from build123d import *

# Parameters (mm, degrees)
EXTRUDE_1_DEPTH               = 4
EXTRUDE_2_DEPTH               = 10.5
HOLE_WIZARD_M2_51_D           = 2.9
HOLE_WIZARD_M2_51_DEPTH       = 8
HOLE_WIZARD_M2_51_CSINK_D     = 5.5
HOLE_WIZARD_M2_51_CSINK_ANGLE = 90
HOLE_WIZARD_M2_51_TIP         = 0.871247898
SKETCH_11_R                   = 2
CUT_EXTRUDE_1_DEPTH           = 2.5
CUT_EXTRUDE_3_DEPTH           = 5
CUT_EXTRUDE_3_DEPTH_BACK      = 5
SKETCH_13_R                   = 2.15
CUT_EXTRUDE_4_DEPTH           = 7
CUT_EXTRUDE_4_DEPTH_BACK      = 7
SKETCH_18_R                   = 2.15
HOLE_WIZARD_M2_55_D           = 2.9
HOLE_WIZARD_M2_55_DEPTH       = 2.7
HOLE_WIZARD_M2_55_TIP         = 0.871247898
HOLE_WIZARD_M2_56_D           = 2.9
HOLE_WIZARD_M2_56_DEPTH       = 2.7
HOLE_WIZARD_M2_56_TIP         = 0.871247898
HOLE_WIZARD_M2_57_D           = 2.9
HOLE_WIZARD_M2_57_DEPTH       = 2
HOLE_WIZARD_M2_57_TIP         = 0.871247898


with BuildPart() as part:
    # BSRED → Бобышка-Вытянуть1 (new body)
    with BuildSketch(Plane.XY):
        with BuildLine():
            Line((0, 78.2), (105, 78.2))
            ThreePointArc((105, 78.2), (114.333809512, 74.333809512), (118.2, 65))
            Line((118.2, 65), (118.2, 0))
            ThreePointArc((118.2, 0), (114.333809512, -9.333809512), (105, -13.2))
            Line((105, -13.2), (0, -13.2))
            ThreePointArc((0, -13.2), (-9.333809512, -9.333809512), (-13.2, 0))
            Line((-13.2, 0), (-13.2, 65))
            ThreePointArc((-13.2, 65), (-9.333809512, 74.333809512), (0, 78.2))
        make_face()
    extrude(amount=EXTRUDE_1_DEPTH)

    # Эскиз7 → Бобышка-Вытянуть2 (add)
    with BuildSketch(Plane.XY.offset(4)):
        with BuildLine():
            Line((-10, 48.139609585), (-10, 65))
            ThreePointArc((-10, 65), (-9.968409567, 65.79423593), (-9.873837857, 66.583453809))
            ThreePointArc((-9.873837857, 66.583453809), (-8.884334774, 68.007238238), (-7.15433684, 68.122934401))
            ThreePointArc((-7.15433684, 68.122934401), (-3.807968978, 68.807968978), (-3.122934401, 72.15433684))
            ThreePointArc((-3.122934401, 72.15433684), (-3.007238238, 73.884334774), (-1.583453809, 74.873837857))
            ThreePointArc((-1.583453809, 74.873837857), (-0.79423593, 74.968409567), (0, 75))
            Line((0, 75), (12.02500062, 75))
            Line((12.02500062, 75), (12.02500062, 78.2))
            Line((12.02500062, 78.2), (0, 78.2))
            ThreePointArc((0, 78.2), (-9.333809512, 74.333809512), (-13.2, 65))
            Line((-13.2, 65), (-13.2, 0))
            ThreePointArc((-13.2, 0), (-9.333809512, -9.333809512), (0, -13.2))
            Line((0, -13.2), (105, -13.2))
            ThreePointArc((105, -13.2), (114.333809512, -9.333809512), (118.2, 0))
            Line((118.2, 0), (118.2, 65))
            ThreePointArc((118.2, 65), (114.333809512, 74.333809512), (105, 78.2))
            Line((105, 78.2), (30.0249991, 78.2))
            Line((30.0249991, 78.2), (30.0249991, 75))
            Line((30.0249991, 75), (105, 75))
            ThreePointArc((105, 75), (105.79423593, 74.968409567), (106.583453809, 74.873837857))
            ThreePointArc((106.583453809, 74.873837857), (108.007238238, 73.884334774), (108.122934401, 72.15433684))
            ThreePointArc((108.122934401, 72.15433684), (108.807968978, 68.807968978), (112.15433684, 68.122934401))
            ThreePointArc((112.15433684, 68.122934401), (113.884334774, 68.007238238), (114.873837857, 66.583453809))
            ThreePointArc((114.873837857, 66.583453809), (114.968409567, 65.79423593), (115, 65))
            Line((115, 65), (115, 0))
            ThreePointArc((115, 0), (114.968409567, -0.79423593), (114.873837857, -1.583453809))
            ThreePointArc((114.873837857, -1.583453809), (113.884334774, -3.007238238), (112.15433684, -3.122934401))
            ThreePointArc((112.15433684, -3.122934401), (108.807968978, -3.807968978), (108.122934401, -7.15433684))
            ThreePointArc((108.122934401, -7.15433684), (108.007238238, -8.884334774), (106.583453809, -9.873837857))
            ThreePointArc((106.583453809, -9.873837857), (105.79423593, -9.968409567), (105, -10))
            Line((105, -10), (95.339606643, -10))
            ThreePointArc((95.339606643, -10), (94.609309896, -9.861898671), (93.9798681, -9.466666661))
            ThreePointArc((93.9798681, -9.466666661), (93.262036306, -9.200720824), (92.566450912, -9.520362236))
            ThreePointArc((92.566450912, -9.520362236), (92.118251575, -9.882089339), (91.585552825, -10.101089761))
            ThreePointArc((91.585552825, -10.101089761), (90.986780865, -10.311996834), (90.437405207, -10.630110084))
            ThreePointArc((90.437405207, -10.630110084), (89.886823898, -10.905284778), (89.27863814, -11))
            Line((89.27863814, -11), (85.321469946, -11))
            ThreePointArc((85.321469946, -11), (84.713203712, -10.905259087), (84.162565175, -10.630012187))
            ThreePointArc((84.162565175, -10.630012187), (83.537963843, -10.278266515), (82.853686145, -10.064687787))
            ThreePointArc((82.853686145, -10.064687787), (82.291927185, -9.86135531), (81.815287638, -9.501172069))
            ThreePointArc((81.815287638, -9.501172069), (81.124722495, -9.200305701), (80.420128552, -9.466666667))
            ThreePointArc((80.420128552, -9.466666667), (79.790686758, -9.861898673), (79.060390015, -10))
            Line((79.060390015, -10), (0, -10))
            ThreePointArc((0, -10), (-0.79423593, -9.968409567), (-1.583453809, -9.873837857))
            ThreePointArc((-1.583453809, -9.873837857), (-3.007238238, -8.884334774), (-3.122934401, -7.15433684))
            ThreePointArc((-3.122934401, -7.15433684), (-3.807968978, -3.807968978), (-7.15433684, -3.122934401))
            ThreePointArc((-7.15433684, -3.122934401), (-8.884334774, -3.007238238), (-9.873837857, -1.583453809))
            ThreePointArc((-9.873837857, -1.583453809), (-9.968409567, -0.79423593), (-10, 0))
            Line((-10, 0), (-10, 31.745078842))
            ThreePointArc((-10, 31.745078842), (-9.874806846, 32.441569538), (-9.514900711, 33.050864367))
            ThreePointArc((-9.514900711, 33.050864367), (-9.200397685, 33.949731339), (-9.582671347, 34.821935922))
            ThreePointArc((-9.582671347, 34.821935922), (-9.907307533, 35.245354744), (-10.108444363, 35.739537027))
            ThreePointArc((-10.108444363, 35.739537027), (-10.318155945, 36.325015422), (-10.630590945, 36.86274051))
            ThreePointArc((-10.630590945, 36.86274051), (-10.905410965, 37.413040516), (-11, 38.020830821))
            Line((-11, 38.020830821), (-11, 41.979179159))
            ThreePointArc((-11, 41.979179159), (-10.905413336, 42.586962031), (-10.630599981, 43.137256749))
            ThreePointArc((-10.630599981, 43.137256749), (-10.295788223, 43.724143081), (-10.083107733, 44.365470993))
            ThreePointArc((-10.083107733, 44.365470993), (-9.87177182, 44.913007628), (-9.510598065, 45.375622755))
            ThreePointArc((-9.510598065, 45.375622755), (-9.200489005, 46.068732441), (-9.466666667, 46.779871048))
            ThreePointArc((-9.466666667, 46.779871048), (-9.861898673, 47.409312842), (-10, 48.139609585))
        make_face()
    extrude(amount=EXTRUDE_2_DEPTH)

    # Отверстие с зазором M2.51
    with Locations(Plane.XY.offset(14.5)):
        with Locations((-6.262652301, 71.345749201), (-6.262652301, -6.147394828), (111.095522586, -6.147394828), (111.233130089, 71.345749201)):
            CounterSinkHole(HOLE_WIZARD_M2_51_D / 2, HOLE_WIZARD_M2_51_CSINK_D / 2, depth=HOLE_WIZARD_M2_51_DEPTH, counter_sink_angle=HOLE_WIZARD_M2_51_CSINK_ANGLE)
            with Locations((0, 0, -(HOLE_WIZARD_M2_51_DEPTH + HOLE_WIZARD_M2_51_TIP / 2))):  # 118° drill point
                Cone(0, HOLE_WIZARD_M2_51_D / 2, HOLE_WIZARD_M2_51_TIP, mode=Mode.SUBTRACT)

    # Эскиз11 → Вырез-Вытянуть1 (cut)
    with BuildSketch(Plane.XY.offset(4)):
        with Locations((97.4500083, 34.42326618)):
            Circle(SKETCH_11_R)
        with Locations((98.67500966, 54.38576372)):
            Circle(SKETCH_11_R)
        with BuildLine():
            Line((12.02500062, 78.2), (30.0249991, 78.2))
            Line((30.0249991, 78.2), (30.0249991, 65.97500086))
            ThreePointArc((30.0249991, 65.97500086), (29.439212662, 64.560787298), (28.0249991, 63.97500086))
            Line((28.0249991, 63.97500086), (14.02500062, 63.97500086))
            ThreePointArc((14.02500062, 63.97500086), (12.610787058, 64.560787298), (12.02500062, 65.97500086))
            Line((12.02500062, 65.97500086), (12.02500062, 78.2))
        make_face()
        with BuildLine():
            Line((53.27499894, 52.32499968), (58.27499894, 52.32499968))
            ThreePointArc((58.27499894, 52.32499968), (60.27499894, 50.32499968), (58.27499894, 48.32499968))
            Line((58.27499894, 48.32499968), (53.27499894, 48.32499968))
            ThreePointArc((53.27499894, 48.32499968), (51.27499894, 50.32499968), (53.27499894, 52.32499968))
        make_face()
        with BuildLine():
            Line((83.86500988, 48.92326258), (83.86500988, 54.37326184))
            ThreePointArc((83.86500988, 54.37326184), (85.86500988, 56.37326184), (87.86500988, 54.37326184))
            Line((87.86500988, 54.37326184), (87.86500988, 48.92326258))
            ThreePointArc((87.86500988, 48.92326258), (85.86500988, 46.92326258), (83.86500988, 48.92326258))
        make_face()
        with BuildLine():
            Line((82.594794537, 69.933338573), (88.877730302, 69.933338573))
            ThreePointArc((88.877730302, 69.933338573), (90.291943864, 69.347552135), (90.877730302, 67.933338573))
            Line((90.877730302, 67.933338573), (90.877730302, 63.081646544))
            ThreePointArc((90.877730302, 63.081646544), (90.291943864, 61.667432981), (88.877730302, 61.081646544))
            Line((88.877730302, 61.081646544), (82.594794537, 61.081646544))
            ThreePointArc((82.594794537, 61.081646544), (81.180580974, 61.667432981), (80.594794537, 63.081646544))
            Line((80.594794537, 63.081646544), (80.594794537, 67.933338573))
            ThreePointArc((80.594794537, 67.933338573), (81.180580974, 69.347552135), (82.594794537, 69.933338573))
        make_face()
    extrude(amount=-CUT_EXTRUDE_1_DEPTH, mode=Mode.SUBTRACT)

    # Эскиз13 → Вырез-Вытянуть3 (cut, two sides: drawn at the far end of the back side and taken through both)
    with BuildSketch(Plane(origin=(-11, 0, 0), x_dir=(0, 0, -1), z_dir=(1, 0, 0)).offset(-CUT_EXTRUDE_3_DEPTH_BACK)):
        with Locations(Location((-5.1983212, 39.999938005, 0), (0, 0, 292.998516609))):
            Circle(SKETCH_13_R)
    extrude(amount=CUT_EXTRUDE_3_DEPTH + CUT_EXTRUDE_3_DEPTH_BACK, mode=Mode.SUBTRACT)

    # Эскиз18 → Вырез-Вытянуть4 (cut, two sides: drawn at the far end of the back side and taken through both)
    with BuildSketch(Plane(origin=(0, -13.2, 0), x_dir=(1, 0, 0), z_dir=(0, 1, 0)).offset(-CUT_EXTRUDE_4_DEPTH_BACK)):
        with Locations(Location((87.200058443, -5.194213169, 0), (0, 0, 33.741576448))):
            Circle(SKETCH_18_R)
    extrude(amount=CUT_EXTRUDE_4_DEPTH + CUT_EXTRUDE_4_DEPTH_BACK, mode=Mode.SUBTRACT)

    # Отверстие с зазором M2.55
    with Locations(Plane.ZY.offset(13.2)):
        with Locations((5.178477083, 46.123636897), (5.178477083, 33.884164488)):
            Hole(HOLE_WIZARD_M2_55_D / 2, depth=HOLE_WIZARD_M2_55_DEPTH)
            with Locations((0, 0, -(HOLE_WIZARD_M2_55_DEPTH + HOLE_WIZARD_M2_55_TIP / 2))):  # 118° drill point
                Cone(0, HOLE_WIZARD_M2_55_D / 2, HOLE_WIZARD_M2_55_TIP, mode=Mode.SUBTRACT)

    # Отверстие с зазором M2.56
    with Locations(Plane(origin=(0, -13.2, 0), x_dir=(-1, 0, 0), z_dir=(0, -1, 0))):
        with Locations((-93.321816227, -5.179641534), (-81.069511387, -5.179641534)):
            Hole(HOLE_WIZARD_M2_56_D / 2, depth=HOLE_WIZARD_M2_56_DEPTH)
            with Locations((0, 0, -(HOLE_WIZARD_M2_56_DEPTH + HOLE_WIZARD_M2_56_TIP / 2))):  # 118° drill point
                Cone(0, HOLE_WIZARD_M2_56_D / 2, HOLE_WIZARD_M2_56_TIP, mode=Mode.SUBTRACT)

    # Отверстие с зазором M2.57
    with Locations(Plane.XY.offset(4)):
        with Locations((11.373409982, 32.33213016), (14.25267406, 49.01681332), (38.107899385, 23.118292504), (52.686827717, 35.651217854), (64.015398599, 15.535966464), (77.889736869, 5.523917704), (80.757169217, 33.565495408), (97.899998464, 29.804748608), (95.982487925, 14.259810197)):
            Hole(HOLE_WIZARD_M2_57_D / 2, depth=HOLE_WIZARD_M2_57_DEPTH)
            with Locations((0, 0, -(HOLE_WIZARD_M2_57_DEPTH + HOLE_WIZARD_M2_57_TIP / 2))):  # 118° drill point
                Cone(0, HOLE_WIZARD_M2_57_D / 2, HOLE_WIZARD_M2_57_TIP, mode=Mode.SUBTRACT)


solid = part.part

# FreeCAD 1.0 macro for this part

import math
import FreeCAD as App
import Part
import Sketcher

V = App.Vector

doc = App.newDocument("Part")
body = doc.addObject("PartDesign::Body", "Body")

sketch1 = body.newObject("Sketcher::SketchObject", "Sketch")
sketch1.AttachmentSupport = (doc.getObject("XY_Plane"), [""])
sketch1.MapMode = "FlatFace"
sketch1.addGeometry([
    Part.LineSegment(V(105, 78, 0), V(0, 78, 0)),
    Part.ArcOfCircle(Part.Circle(V(0, 65, 0), V(0, 0, 1), 13), math.radians(90), math.radians(180)),
    Part.LineSegment(V(-13, 65, 0), V(-13, 0, 0)),
    Part.ArcOfCircle(Part.Circle(V(0, 0, 0), V(0, 0, 1), 13), math.radians(180), math.radians(270)),
    Part.LineSegment(V(0, -13, 0), V(105, -13, 0)),
    Part.ArcOfCircle(Part.Circle(V(105, 0, 0), V(0, 0, 1), 13), math.radians(-90), math.radians(0)),
    Part.LineSegment(V(118, 0, 0), V(118, 65, 0)),
    Part.ArcOfCircle(Part.Circle(V(105, 65, 0), V(0, 0, 1), 13), math.radians(0), math.radians(90)),
], False)
sketch1.addConstraint([
    Sketcher.Constraint("Tangent", 0, 2, 1, 1),
    Sketcher.Constraint("Tangent", 1, 2, 2, 1),
    Sketcher.Constraint("Tangent", 2, 2, 3, 1),
    Sketcher.Constraint("Tangent", 3, 2, 4, 1),
    Sketcher.Constraint("Tangent", 4, 2, 5, 1),
    Sketcher.Constraint("Tangent", 5, 2, 6, 1),
    Sketcher.Constraint("Tangent", 6, 2, 7, 1),
    Sketcher.Constraint("Tangent", 7, 2, 0, 1),
    Sketcher.Constraint("Horizontal", 0),
    Sketcher.Constraint("Vertical", 2),
    Sketcher.Constraint("Horizontal", 4),
    Sketcher.Constraint("Vertical", 6),
    Sketcher.Constraint("Coincident", 3, 3, -1, 1),
    Sketcher.Constraint("Equal", 1, 3),
    Sketcher.Constraint("Equal", 3, 5),
    Sketcher.Constraint("Equal", 5, 7),
    Sketcher.Constraint("Radius", 1, 13.2),
    Sketcher.Constraint("DistanceX", 0, 2, 0, 1, 105.0),
    Sketcher.Constraint("DistanceY", 2, 2, 2, 1, 65.0),
])
pad1 = body.newObject("PartDesign::Pad", "Pad")
pad1.Profile = sketch1
pad1.Length = 4

sketch2 = body.newObject("Sketcher::SketchObject", "Sketch001")
sketch2.AttachmentSupport = (doc.getObject("XY_Plane"), [""])
sketch2.MapMode = "FlatFace"
sketch2.AttachmentOffset = App.Placement(V(0, 0, 4), App.Rotation())
sketch2.addGeometry([
    Part.LineSegment(V(-10, 48.1, 0), V(-10, 65, 0)),
    Part.ArcOfCircle(Part.Circle(V(0, 65, 0), V(0, 0, 1), 10), math.radians(170.89), math.radians(180)),
    Part.ArcOfCircle(Part.Circle(V(-7.9, 66.3, 0), V(0, 0, 1), 2), math.radians(68), math.radians(171)),
    Part.ArcOfCircle(Part.Circle(V(-6, 71, 0), V(0, 0, 1), 3.1), math.radians(-112), math.radians(22)),
    Part.ArcOfCircle(Part.Circle(V(-1.3, 72.9, 0), V(0, 0, 1), 2), math.radians(99), math.radians(202)),
    Part.ArcOfCircle(Part.Circle(V(0, 65, 0), V(0, 0, 1), 10), math.radians(90), math.radians(99.11)),
    Part.LineSegment(V(0, 75, 0), V(12, 75, 0)),
    Part.LineSegment(V(12, 75, 0), V(12, 78.2, 0)),
    Part.LineSegment(V(12, 78.2, 0), V(0, 78.2, 0)),
    Part.ArcOfCircle(Part.Circle(V(0, 65, 0), V(0, 0, 1), 13.2), math.radians(90), math.radians(180)),
    Part.LineSegment(V(-13.2, 65, 0), V(-13.2, 0, 0)),
    Part.ArcOfCircle(Part.Circle(V(0, 0, 0), V(0, 0, 1), 13.2), math.radians(180), math.radians(270)),
    Part.LineSegment(V(0, -13.2, 0), V(105, -13.2, 0)),
    Part.ArcOfCircle(Part.Circle(V(105, 0, 0), V(0, 0, 1), 13.2), math.radians(-90), math.radians(0)),
    Part.LineSegment(V(118.2, 0, 0), V(118.2, 65, 0)),
    Part.ArcOfCircle(Part.Circle(V(105, 65, 0), V(0, 0, 1), 13.2), math.radians(0), math.radians(90)),
    Part.LineSegment(V(105, 78.2, 0), V(30, 78.2, 0)),
    Part.LineSegment(V(30, 78.2, 0), V(30, 75, 0)),
    Part.LineSegment(V(30, 75, 0), V(105, 75, 0)),
    Part.ArcOfCircle(Part.Circle(V(105, 65, 0), V(0, 0, 1), 10), math.radians(80.89), math.radians(90)),
    Part.ArcOfCircle(Part.Circle(V(106.3, 72.9, 0), V(0, 0, 1), 2), math.radians(-22), math.radians(81)),
    Part.ArcOfCircle(Part.Circle(V(111, 71, 0), V(0, 0, 1), 3.1), math.radians(158), math.radians(292)),
    Part.ArcOfCircle(Part.Circle(V(112.9, 66.3, 0), V(0, 0, 1), 2), math.radians(9), math.radians(112)),
    Part.ArcOfCircle(Part.Circle(V(105, 65, 0), V(0, 0, 1), 10), math.radians(0), math.radians(9.11)),
    Part.LineSegment(V(115, 65, 0), V(115, 0, 0)),
    Part.ArcOfCircle(Part.Circle(V(105, 0, 0), V(0, 0, 1), 10), math.radians(-9.11), math.radians(0)),
    Part.ArcOfCircle(Part.Circle(V(112.9, -1.3, 0), V(0, 0, 1), 2), math.radians(-112), math.radians(-9)),
    Part.ArcOfCircle(Part.Circle(V(111, -6, 0), V(0, 0, 1), 3.1), math.radians(68), math.radians(202)),
    Part.ArcOfCircle(Part.Circle(V(106.3, -7.9, 0), V(0, 0, 1), 2), math.radians(-81), math.radians(22)),
    Part.ArcOfCircle(Part.Circle(V(105, 0, 0), V(0, 0, 1), 10), math.radians(-90), math.radians(-80.89)),
    Part.LineSegment(V(105, -10, 0), V(95.3, -10, 0)),
    Part.ArcOfCircle(Part.Circle(V(95.3, -8, 0), V(0, 0, 1), 2), math.radians(-133), math.radians(-90)),
    Part.ArcOfCircle(Part.Circle(V(93.3, -10.2, 0), V(0, 0, 1), 1), math.radians(47), math.radians(137)),
    Part.ArcOfCircle(Part.Circle(V(91.1, -8.2, 0), V(0, 0, 1), 2), math.radians(-76), math.radians(-43)),
    Part.ArcOfCircle(Part.Circle(V(92.4, -13.4, 0), V(0, 0, 1), 3.4), math.radians(104), math.radians(125)),
    Part.ArcOfCircle(Part.Circle(V(89.3, -9, 0), V(0, 0, 1), 2), math.radians(-90), math.radians(-55)),
    Part.LineSegment(V(89.3, -11, 0), V(85.3, -11, 0)),
    Part.ArcOfCircle(Part.Circle(V(85.3, -9, 0), V(0, 0, 1), 2), math.radians(-125), math.radians(-90)),
    Part.ArcOfCircle(Part.Circle(V(82.2, -13.4, 0), V(0, 0, 1), 3.4), math.radians(55), math.radians(79)),
    Part.ArcOfCircle(Part.Circle(V(83.2, -8.1, 0), V(0, 0, 1), 2), math.radians(-136), math.radians(-101)),
    Part.ArcOfCircle(Part.Circle(V(81.1, -10.2, 0), V(0, 0, 1), 1), math.radians(44), math.radians(133)),
    Part.ArcOfCircle(Part.Circle(V(79.1, -8, 0), V(0, 0, 1), 2), math.radians(-90), math.radians(-47)),
    Part.LineSegment(V(79.1, -10, 0), V(0, -10, 0)),
    Part.ArcOfCircle(Part.Circle(V(0, 0, 0), V(0, 0, 1), 10), math.radians(-99.11), math.radians(-90)),
    Part.ArcOfCircle(Part.Circle(V(-1.3, -7.9, 0), V(0, 0, 1), 2), math.radians(158), math.radians(261)),
    Part.ArcOfCircle(Part.Circle(V(-6, -6, 0), V(0, 0, 1), 3.1), math.radians(-22), math.radians(112)),
    Part.ArcOfCircle(Part.Circle(V(-7.9, -1.3, 0), V(0, 0, 1), 2), math.radians(-171), math.radians(-68)),
    Part.ArcOfCircle(Part.Circle(V(0, 0, 0), V(0, 0, 1), 10), math.radians(180), math.radians(189.11)),
    Part.LineSegment(V(-10, 0, 0), V(-10, 31.7, 0)),
    Part.ArcOfCircle(Part.Circle(V(-8, 31.7, 0), V(0, 0, 1), 2), math.radians(139), math.radians(180)),
    Part.ArcOfCircle(Part.Circle(V(-10.5, 33.9, 0), V(0, 0, 1), 1.3), math.radians(-41), math.radians(45)),
    Part.ArcOfCircle(Part.Circle(V(-8.2, 36.2, 0), V(0, 0, 1), 2), math.radians(-166), math.radians(-135)),
    Part.ArcOfCircle(Part.Circle(V(-13.4, 34.9, 0), V(0, 0, 1), 3.4), math.radians(14), math.radians(35)),
    Part.ArcOfCircle(Part.Circle(V(-9, 38, 0), V(0, 0, 1), 2), math.radians(180), math.radians(215)),
    Part.LineSegment(V(-11, 38, 0), V(-11, 42, 0)),
    Part.ArcOfCircle(Part.Circle(V(-9, 42, 0), V(0, 0, 1), 2), math.radians(145), math.radians(180)),
    Part.ArcOfCircle(Part.Circle(V(-13.4, 45.1, 0), V(0, 0, 1), 3.4), math.radians(-35), math.radians(-13)),
    Part.ArcOfCircle(Part.Circle(V(-8.1, 43.9, 0), V(0, 0, 1), 2), math.radians(134), math.radians(167)),
    Part.ArcOfCircle(Part.Circle(V(-10.2, 46.1, 0), V(0, 0, 1), 1), math.radians(-46), math.radians(43)),
    Part.ArcOfCircle(Part.Circle(V(-8, 48.1, 0), V(0, 0, 1), 2), math.radians(180), math.radians(223)),
], False)
sketch2.addConstraint([
    Sketcher.Constraint("Tangent", 0, 2, 1, 2),
    Sketcher.Constraint("Tangent", 1, 1, 2, 2),
    Sketcher.Constraint("Tangent", 2, 1, 3, 1),
    Sketcher.Constraint("Tangent", 3, 2, 4, 2),
    Sketcher.Constraint("Tangent", 4, 1, 5, 2),
    Sketcher.Constraint("Tangent", 5, 1, 6, 1),
    Sketcher.Constraint("Coincident", 6, 2, 7, 1),
    Sketcher.Constraint("Coincident", 7, 2, 8, 1),
    Sketcher.Constraint("Tangent", 8, 2, 9, 1),
    Sketcher.Constraint("Tangent", 9, 2, 10, 1),
    Sketcher.Constraint("Tangent", 10, 2, 11, 1),
    Sketcher.Constraint("Tangent", 11, 2, 12, 1),
    Sketcher.Constraint("Tangent", 12, 2, 13, 1),
    Sketcher.Constraint("Tangent", 13, 2, 14, 1),
    Sketcher.Constraint("Tangent", 14, 2, 15, 1),
    Sketcher.Constraint("Tangent", 15, 2, 16, 1),
    Sketcher.Constraint("Coincident", 16, 2, 17, 1),
    Sketcher.Constraint("Coincident", 17, 2, 18, 1),
    Sketcher.Constraint("Tangent", 18, 2, 19, 2),
    Sketcher.Constraint("Tangent", 19, 1, 20, 2),
    Sketcher.Constraint("Tangent", 20, 1, 21, 1),
    Sketcher.Constraint("Tangent", 21, 2, 22, 2),
    Sketcher.Constraint("Tangent", 22, 1, 23, 2),
    Sketcher.Constraint("Tangent", 23, 1, 24, 1),
    Sketcher.Constraint("Tangent", 24, 2, 25, 2),
    Sketcher.Constraint("Tangent", 25, 1, 26, 2),
    Sketcher.Constraint("Tangent", 26, 1, 27, 1),
    Sketcher.Constraint("Tangent", 27, 2, 28, 2),
    Sketcher.Constraint("Tangent", 28, 1, 29, 2),
    Sketcher.Constraint("Tangent", 29, 1, 30, 1),
    Sketcher.Constraint("Tangent", 30, 2, 31, 2),
    Sketcher.Constraint("Tangent", 31, 1, 32, 1),
    Sketcher.Constraint("Tangent", 32, 2, 33, 2),
    Sketcher.Constraint("Tangent", 33, 1, 34, 1),
    Sketcher.Constraint("Tangent", 34, 2, 35, 2),
    Sketcher.Constraint("Tangent", 35, 1, 36, 1),
    Sketcher.Constraint("Tangent", 36, 2, 37, 2),
    Sketcher.Constraint("Tangent", 37, 1, 38, 1),
    Sketcher.Constraint("Tangent", 38, 2, 39, 2),
    Sketcher.Constraint("Tangent", 39, 1, 40, 1),
    Sketcher.Constraint("Tangent", 40, 2, 41, 2),
    Sketcher.Constraint("Tangent", 41, 1, 42, 1),
    Sketcher.Constraint("Tangent", 42, 2, 43, 2),
    Sketcher.Constraint("Tangent", 43, 1, 44, 2),
    Sketcher.Constraint("Tangent", 44, 1, 45, 1),
    Sketcher.Constraint("Tangent", 45, 2, 46, 2),
    Sketcher.Constraint("Tangent", 46, 1, 47, 2),
    Sketcher.Constraint("Tangent", 47, 1, 48, 1),
    Sketcher.Constraint("Tangent", 48, 2, 49, 2),
    Sketcher.Constraint("Tangent", 49, 1, 50, 1),
    Sketcher.Constraint("Tangent", 50, 2, 51, 2),
    Sketcher.Constraint("Tangent", 51, 1, 52, 1),
    Sketcher.Constraint("Tangent", 52, 2, 53, 2),
    Sketcher.Constraint("Tangent", 53, 1, 54, 1),
    Sketcher.Constraint("Tangent", 54, 2, 55, 2),
    Sketcher.Constraint("Tangent", 55, 1, 56, 1),
    Sketcher.Constraint("Tangent", 56, 2, 57, 2),
    Sketcher.Constraint("Tangent", 57, 1, 58, 1),
    Sketcher.Constraint("Tangent", 58, 2, 59, 2),
    Sketcher.Constraint("Tangent", 59, 1, 0, 1),
    Sketcher.Constraint("Vertical", 0),
    Sketcher.Constraint("Horizontal", 6),
    Sketcher.Constraint("Vertical", 7),
    Sketcher.Constraint("Horizontal", 8),
    Sketcher.Constraint("Vertical", 10),
    Sketcher.Constraint("Horizontal", 12),
    Sketcher.Constraint("Vertical", 14),
    Sketcher.Constraint("Horizontal", 16),
    Sketcher.Constraint("Vertical", 17),
    Sketcher.Constraint("Horizontal", 18),
    Sketcher.Constraint("Vertical", 24),
    Sketcher.Constraint("Horizontal", 30),
    Sketcher.Constraint("Horizontal", 36),
    Sketcher.Constraint("Horizontal", 42),
    Sketcher.Constraint("Vertical", 48),
    Sketcher.Constraint("Vertical", 54),
    Sketcher.Constraint("Coincident", 11, 3, -1, 1),
    Sketcher.Constraint("Coincident", 43, 3, -1, 1),
    Sketcher.Constraint("Coincident", 47, 3, -1, 1),
    Sketcher.Constraint("Coincident", 5, 3, 1, 3),
    Sketcher.Constraint("Coincident", 9, 3, 1, 3),
    Sketcher.Constraint("Coincident", 19, 3, 15, 3),
    Sketcher.Constraint("Coincident", 23, 3, 15, 3),
    Sketcher.Constraint("Coincident", 25, 3, 13, 3),
    Sketcher.Constraint("Coincident", 29, 3, 13, 3),
    Sketcher.Constraint("Equal", 2, 4),
    Sketcher.Constraint("Equal", 1, 5),
    Sketcher.Constraint("Equal", 9, 11),
    Sketcher.Constraint("Equal", 11, 13),
    Sketcher.Constraint("Equal", 13, 15),
    Sketcher.Constraint("Equal", 5, 19),
    Sketcher.Constraint("Equal", 4, 20),
    Sketcher.Constraint("Equal", 3, 21),
    Sketcher.Constraint("Equal", 20, 22),
    Sketcher.Constraint("Equal", 19, 23),
    Sketcher.Constraint("Equal", 22, 26),
    Sketcher.Constraint("Equal", 21, 27),
    Sketcher.Constraint("Equal", 26, 28),
    Sketcher.Constraint("Equal", 25, 29),
    Sketcher.Constraint("Equal", 28, 31),
    Sketcher.Constraint("Equal", 31, 33),
    Sketcher.Constraint("Equal", 33, 35),
    Sketcher.Constraint("Equal", 35, 37),
    Sketcher.Constraint("Equal", 34, 38),
    Sketcher.Constraint("Equal", 37, 39),
    Sketcher.Constraint("Equal", 32, 40),
    Sketcher.Constraint("Equal", 39, 41),
    Sketcher.Constraint("Equal", 29, 43),
    Sketcher.Constraint("Equal", 41, 44),
    Sketcher.Constraint("Equal", 27, 45),
    Sketcher.Constraint("Equal", 44, 46),
    Sketcher.Constraint("Equal", 43, 47),
    Sketcher.Constraint("Equal", 46, 49),
    Sketcher.Constraint("Equal", 49, 51),
    Sketcher.Constraint("Equal", 38, 52),
    Sketcher.Constraint("Equal", 51, 53),
    Sketcher.Constraint("Equal", 53, 55),
    Sketcher.Constraint("Equal", 52, 56),
    Sketcher.Constraint("Equal", 55, 57),
    Sketcher.Constraint("Equal", 40, 58),
    Sketcher.Constraint("Equal", 57, 59),
    Sketcher.Constraint("Horizontal", 9, 3, 15, 3),
    Sketcher.Constraint("Horizontal", 4, 3, 20, 3),
    Sketcher.Constraint("Horizontal", 3, 3, 21, 3),
    Sketcher.Constraint("Horizontal", 32, 3, 40, 3),
    Sketcher.Constraint("Horizontal", 28, 3, 44, 3),
    Sketcher.Constraint("Horizontal", 27, 3, 45, 3),
    Sketcher.Constraint("Vertical", 22, 3, 26, 3),
    Sketcher.Constraint("Vertical", 21, 3, 27, 3),
    Sketcher.Constraint("Radius", 1, 10.0),
    Sketcher.Constraint("Radius", 2, 2.0),
    Sketcher.Constraint("Radius", 32, 1.0),
    Sketcher.Constraint("Radius", 3, 3.1),
    Sketcher.Constraint("Radius", 9, 13.2),
    Sketcher.Constraint("DistanceX", 12, 1, 12, 2, 105.0),
    Sketcher.Constraint("DistanceY", 10, 2, 10, 1, 65.0),
    Sketcher.Constraint("DistanceX", 3, 3, -1, 1, 6.0),
    Sketcher.Constraint("DistanceY", -1, 1, 3, 3, 71.0),
    Sketcher.Constraint("DistanceY", 35, 3, -1, 1, 9.0),
    Sketcher.Constraint("DistanceX", 53, 3, -1, 1, 9.0),
    Sketcher.Constraint("DistanceX", -1, 1, 32, 3, 93.299999),
    Sketcher.Constraint("DistanceY", 32, 3, -1, 1, 10.2),
    Sketcher.Constraint("DistanceY", -1, 1, 50, 3, 33.900001),
    Sketcher.Constraint("DistanceX", 58, 3, -1, 1, 10.2),
    Sketcher.Constraint("DistanceY", -1, 1, 58, 3, 46.100002),
    Sketcher.Constraint("DistanceX", 6, 1, 6, 2, 12.025001),
    Sketcher.Constraint("DistanceX", 16, 2, 16, 1, 74.975001),
    Sketcher.Constraint("Radius", 34, 3.414213),
    Sketcher.Constraint("Radius", 50, 1.300576),
    Sketcher.Constraint("DistanceX", 36, 2, 36, 1, 3.957168),
    Sketcher.Constraint("DistanceX", 42, 2, 42, 1, 79.06039),
    Sketcher.Constraint("DistanceY", 48, 1, 48, 2, 31.745079),
    Sketcher.Constraint("DistanceY", 54, 1, 54, 2, 3.958348),
    Sketcher.Constraint("DistanceX", 55, 1, -1, 1, 10.6306),
    Sketcher.Constraint("DistanceX", 57, 1, -1, 1, 9.510598),
    Sketcher.Constraint("DistanceY", 34, 3, -1, 1, 13.412882),
    Sketcher.Constraint("DistanceX", -1, 1, 35, 3, 89.278638),
    Sketcher.Constraint("DistanceX", -1, 1, 38, 3, 82.184191),
    Sketcher.Constraint("DistanceY", -1, 1, 51, 3, 36.23967),
])
pad2 = body.newObject("PartDesign::Pad", "Pad001")
pad2.Profile = sketch2
pad2.Length = 10.5

sketch3 = body.newObject("Sketcher::SketchObject", "Sketch002")
sketch3.AttachmentSupport = (doc.getObject("XY_Plane"), [""])
sketch3.MapMode = "FlatFace"
sketch3.AttachmentOffset = App.Placement(V(0, 0, 14.5), App.Rotation())
sketch3.addGeometry([
    Part.Circle(V(-6.3, 71.3, 0), V(0, 0, 1), 1.4),
    Part.Circle(V(-6.3, -6.1, 0), V(0, 0, 1), 1.4),
    Part.Circle(V(111.1, -6.1, 0), V(0, 0, 1), 1.4),
    Part.Circle(V(111.2, 71.3, 0), V(0, 0, 1), 1.4),
], False)
sketch3.addConstraint([
    Sketcher.Constraint("Equal", 0, 1),
    Sketcher.Constraint("Equal", 1, 2),
    Sketcher.Constraint("Equal", 2, 3),
    Sketcher.Constraint("Horizontal", 1, 3, 2, 3),
    Sketcher.Constraint("Horizontal", 0, 3, 3, 3),
    Sketcher.Constraint("Vertical", 0, 3, 1, 3),
    Sketcher.Constraint("Diameter", 0, 2.9),
    Sketcher.Constraint("DistanceY", -1, 1, 0, 3, 71.345749),
    Sketcher.Constraint("DistanceX", -1, 1, 3, 3, 111.23313),
    Sketcher.Constraint("DistanceX", 0, 3, -1, 1, 6.262652),
    Sketcher.Constraint("DistanceY", 1, 3, -1, 1, 6.147395),
    Sketcher.Constraint("DistanceX", -1, 1, 2, 3, 111.095523),
])
doc.recompute()
hole = body.newObject("PartDesign::Hole", "Hole")
hole.Profile = sketch3
hole.ThreadType = "None"
hole.Diameter = 2.9
hole.DepthType = "Dimension"
hole.Depth = 8
hole.DrillPoint = "Angled"
hole.DrillPointAngle = 118
hole.HoleCutType = "Countersink"
hole.HoleCutDiameter = 5.5
hole.HoleCutCountersinkAngle = 90

sketch4 = body.newObject("Sketcher::SketchObject", "Sketch003")
sketch4.AttachmentSupport = (doc.getObject("XY_Plane"), [""])
sketch4.MapMode = "FlatFace"
sketch4.AttachmentOffset = App.Placement(V(0, 0, 4), App.Rotation())
sketch4.addGeometry([
    Part.Circle(V(97.5, 34.4, 0), V(0, 0, 1), 2),
    Part.Circle(V(98.7, 54.4, 0), V(0, 0, 1), 2),
    Part.LineSegment(V(30, 78.2, 0), V(12, 78.2, 0)),
    Part.LineSegment(V(12, 78.2, 0), V(12, 66, 0)),
    Part.ArcOfCircle(Part.Circle(V(14, 66, 0), V(0, 0, 1), 2), math.radians(-180), math.radians(-90)),
    Part.LineSegment(V(14, 64, 0), V(28, 64, 0)),
    Part.ArcOfCircle(Part.Circle(V(28, 66, 0), V(0, 0, 1), 2), math.radians(-90), math.radians(0)),
    Part.LineSegment(V(30, 66, 0), V(30, 78.2, 0)),
    Part.LineSegment(V(58.3, 52.3, 0), V(53.3, 52.3, 0)),
    Part.ArcOfCircle(Part.Circle(V(53.3, 50.3, 0), V(0, 0, 1), 2), math.radians(90), math.radians(270)),
    Part.LineSegment(V(53.3, 48.3, 0), V(58.3, 48.3, 0)),
    Part.ArcOfCircle(Part.Circle(V(58.3, 50.3, 0), V(0, 0, 1), 2), math.radians(-90), math.radians(90)),
    Part.LineSegment(V(83.9, 54.4, 0), V(83.9, 48.9, 0)),
    Part.ArcOfCircle(Part.Circle(V(85.9, 48.9, 0), V(0, 0, 1), 2), math.radians(180), math.radians(360)),
    Part.LineSegment(V(87.9, 48.9, 0), V(87.9, 54.4, 0)),
    Part.ArcOfCircle(Part.Circle(V(85.9, 54.4, 0), V(0, 0, 1), 2), math.radians(0), math.radians(180)),
    Part.LineSegment(V(88.9, 69.9, 0), V(82.6, 69.9, 0)),
    Part.ArcOfCircle(Part.Circle(V(82.6, 67.9, 0), V(0, 0, 1), 2), math.radians(90), math.radians(180)),
    Part.LineSegment(V(80.6, 67.9, 0), V(80.6, 63.1, 0)),
    Part.ArcOfCircle(Part.Circle(V(82.6, 63.1, 0), V(0, 0, 1), 2), math.radians(180), math.radians(270)),
    Part.LineSegment(V(82.6, 61.1, 0), V(88.9, 61.1, 0)),
    Part.ArcOfCircle(Part.Circle(V(88.9, 63.1, 0), V(0, 0, 1), 2), math.radians(-90), math.radians(0)),
    Part.LineSegment(V(90.9, 63.1, 0), V(90.9, 67.9, 0)),
    Part.ArcOfCircle(Part.Circle(V(88.9, 67.9, 0), V(0, 0, 1), 2), math.radians(0), math.radians(90)),
], False)
sketch4.addConstraint([
    Sketcher.Constraint("Coincident", 2, 2, 3, 1),
    Sketcher.Constraint("Tangent", 3, 2, 4, 1),
    Sketcher.Constraint("Tangent", 4, 2, 5, 1),
    Sketcher.Constraint("Tangent", 5, 2, 6, 1),
    Sketcher.Constraint("Tangent", 6, 2, 7, 1),
    Sketcher.Constraint("Coincident", 7, 2, 2, 1),
    Sketcher.Constraint("Tangent", 8, 2, 9, 1),
    Sketcher.Constraint("Tangent", 9, 2, 10, 1),
    Sketcher.Constraint("Tangent", 10, 2, 11, 1),
    Sketcher.Constraint("Tangent", 11, 2, 8, 1),
    Sketcher.Constraint("Tangent", 12, 2, 13, 1),
    Sketcher.Constraint("Tangent", 13, 2, 14, 1),
    Sketcher.Constraint("Tangent", 14, 2, 15, 1),
    Sketcher.Constraint("Tangent", 15, 2, 12, 1),
    Sketcher.Constraint("Tangent", 16, 2, 17, 1),
    Sketcher.Constraint("Tangent", 17, 2, 18, 1),
    Sketcher.Constraint("Tangent", 18, 2, 19, 1),
    Sketcher.Constraint("Tangent", 19, 2, 20, 1),
    Sketcher.Constraint("Tangent", 20, 2, 21, 1),
    Sketcher.Constraint("Tangent", 21, 2, 22, 1),
    Sketcher.Constraint("Tangent", 22, 2, 23, 1),
    Sketcher.Constraint("Tangent", 23, 2, 16, 1),
    Sketcher.Constraint("Horizontal", 2),
    Sketcher.Constraint("Vertical", 3),
    Sketcher.Constraint("Horizontal", 5),
    Sketcher.Constraint("Vertical", 7),
    Sketcher.Constraint("Horizontal", 8),
    Sketcher.Constraint("Horizontal", 10),
    Sketcher.Constraint("Vertical", 12),
    Sketcher.Constraint("Vertical", 14),
    Sketcher.Constraint("Horizontal", 16),
    Sketcher.Constraint("Vertical", 18),
    Sketcher.Constraint("Horizontal", 20),
    Sketcher.Constraint("Vertical", 22),
    Sketcher.Constraint("Equal", 0, 1),
    Sketcher.Constraint("Equal", 1, 4),
    Sketcher.Constraint("Equal", 4, 6),
    Sketcher.Constraint("Equal", 6, 9),
    Sketcher.Constraint("Equal", 11, 13),
    Sketcher.Constraint("Equal", 15, 17),
    Sketcher.Constraint("Equal", 17, 19),
    Sketcher.Constraint("Equal", 19, 21),
    Sketcher.Constraint("Equal", 21, 23),
    Sketcher.Constraint("Diameter", 0, 4.0),
    Sketcher.Constraint("DistanceX", 2, 2, 2, 1, 17.999998),
    Sketcher.Constraint("DistanceX", 8, 2, 8, 1, 5.0),
    Sketcher.Constraint("DistanceY", 12, 2, 12, 1, 5.449999),
    Sketcher.Constraint("DistanceY", -1, 1, 2, 2, 78.2),
    Sketcher.Constraint("DistanceY", 3, 2, 3, 1, 12.224999),
    Sketcher.Constraint("DistanceX", 6, 3, 9, 3, 25.25),
    Sketcher.Constraint("DistanceY", 9, 3, 6, 3, 15.650001),
    Sketcher.Constraint("DistanceX", 13, 3, 1, 3, 12.81),
    Sketcher.Constraint("DistanceX", -1, 1, 4, 3, 14.025001),
    Sketcher.Constraint("DistanceX", 0, 3, 1, 3, 1.225001),
    Sketcher.Constraint("DistanceY", 13, 3, 1, 3, 5.462501),
    Sketcher.Constraint("DistanceX", 16, 2, 16, 1, 6.282936),
    Sketcher.Constraint("DistanceY", 18, 2, 18, 1, 4.851692),
    Sketcher.Constraint("DistanceX", -1, 1, 0, 3, 97.450008),
    Sketcher.Constraint("DistanceY", -1, 1, 15, 3, 54.373262),
    Sketcher.Constraint("DistanceY", -1, 1, 17, 3, 67.933339),
    Sketcher.Constraint("DistanceX", -1, 1, 21, 3, 88.87773),
    Sketcher.Constraint("DistanceY", -1, 1, 0, 3, 34.423266),
])
pocket1 = body.newObject("PartDesign::Pocket", "Pocket")
pocket1.Profile = sketch4
pocket1.Length = 2.5

sketch5 = body.newObject("Sketcher::SketchObject", "Sketch004")
sketch5.AttachmentSupport = (doc.getObject("YZ_Plane"), [""])
sketch5.MapMode = "FlatFace"
sketch5.AttachmentOffset = App.Placement(V(0, 0, -11), App.Rotation())
sketch5.addGeometry(Part.Circle(V(40, 5.2, 0), V(0, 0, 1), 2.1), False)
sketch5.addConstraint([
    Sketcher.Constraint("Diameter", 0, 4.3),
    Sketcher.Constraint("DistanceX", -1, 1, 0, 3, 39.999938),
    Sketcher.Constraint("DistanceY", -1, 1, 0, 3, 5.198321),
])
pocket2 = body.newObject("PartDesign::Pocket", "Pocket001")
pocket2.Profile = sketch5
pocket2.Type = "TwoLengths"
pocket2.Length = 5
pocket2.Length2 = 5
pocket2.Reversed = True

sketch6 = body.newObject("Sketcher::SketchObject", "Sketch005")
sketch6.AttachmentSupport = (doc.getObject("XZ_Plane"), [""])
sketch6.MapMode = "FlatFace"
sketch6.AttachmentOffset = App.Placement(V(0, 0, 13.2), App.Rotation())
sketch6.addGeometry(Part.Circle(V(87.2, 5.2, 0), V(0, 0, 1), 2.1), False)
sketch6.addConstraint([
    Sketcher.Constraint("Diameter", 0, 4.3),
    Sketcher.Constraint("DistanceX", -1, 1, 0, 3, 87.200058),
    Sketcher.Constraint("DistanceY", -1, 1, 0, 3, 5.194213),
])
pocket3 = body.newObject("PartDesign::Pocket", "Pocket002")
pocket3.Profile = sketch6
pocket3.Type = "TwoLengths"
pocket3.Length = 7
pocket3.Length2 = 7

sketch7 = body.newObject("Sketcher::SketchObject", "Sketch006")
sketch7.AttachmentSupport = (doc.getObject("YZ_Plane"), [""])
sketch7.MapMode = "FlatFace"
sketch7.AttachmentOffset = App.Placement(V(0, 0, -13.2), App.Rotation())
sketch7.addGeometry([
    Part.Circle(V(46.1, 5.2, 0), V(0, 0, 1), 1.4),
    Part.Circle(V(33.9, 5.2, 0), V(0, 0, 1), 1.4),
], False)
sketch7.addConstraint([
    Sketcher.Constraint("Equal", 0, 1),
    Sketcher.Constraint("Horizontal", 0, 3, 1, 3),
    Sketcher.Constraint("Diameter", 0, 2.9),
    Sketcher.Constraint("DistanceX", -1, 1, 0, 3, 46.123637),
    Sketcher.Constraint("DistanceY", -1, 1, 0, 3, 5.178477),
    Sketcher.Constraint("DistanceX", -1, 1, 1, 3, 33.884164),
])
doc.recompute()
hole2 = body.newObject("PartDesign::Hole", "Hole001")
hole2.Profile = sketch7
hole2.ThreadType = "None"
hole2.Diameter = 2.9
hole2.DepthType = "Dimension"
hole2.Depth = 2.7
hole2.DrillPoint = "Angled"
hole2.DrillPointAngle = 118
hole2.Reversed = True

sketch8 = body.newObject("Sketcher::SketchObject", "Sketch007")
sketch8.AttachmentSupport = (doc.getObject("XZ_Plane"), [""])
sketch8.MapMode = "FlatFace"
sketch8.AttachmentOffset = App.Placement(V(0, 0, 13.2), App.Rotation())
sketch8.addGeometry([
    Part.Circle(V(93.3, 5.2, 0), V(0, 0, 1), 1.4),
    Part.Circle(V(81.1, 5.2, 0), V(0, 0, 1), 1.4),
], False)
sketch8.addConstraint([
    Sketcher.Constraint("Equal", 0, 1),
    Sketcher.Constraint("Horizontal", 0, 3, 1, 3),
    Sketcher.Constraint("Diameter", 0, 2.9),
    Sketcher.Constraint("DistanceY", -1, 1, 0, 3, 5.179642),
    Sketcher.Constraint("DistanceX", -1, 1, 1, 3, 81.069511),
    Sketcher.Constraint("DistanceX", -1, 1, 0, 3, 93.321816),
])
doc.recompute()
hole3 = body.newObject("PartDesign::Hole", "Hole002")
hole3.Profile = sketch8
hole3.ThreadType = "None"
hole3.Diameter = 2.9
hole3.DepthType = "Dimension"
hole3.Depth = 2.7
hole3.DrillPoint = "Angled"
hole3.DrillPointAngle = 118

sketch9 = body.newObject("Sketcher::SketchObject", "Sketch008")
sketch9.AttachmentSupport = (doc.getObject("XY_Plane"), [""])
sketch9.MapMode = "FlatFace"
sketch9.AttachmentOffset = App.Placement(V(0, 0, 4), App.Rotation())
sketch9.addGeometry([
    Part.Circle(V(11.4, 32.3, 0), V(0, 0, 1), 1.4),
    Part.Circle(V(14.3, 49, 0), V(0, 0, 1), 1.4),
    Part.Circle(V(38.1, 23.1, 0), V(0, 0, 1), 1.4),
    Part.Circle(V(52.7, 35.7, 0), V(0, 0, 1), 1.4),
    Part.Circle(V(64, 15.5, 0), V(0, 0, 1), 1.4),
    Part.Circle(V(77.9, 5.5, 0), V(0, 0, 1), 1.4),
    Part.Circle(V(80.8, 33.6, 0), V(0, 0, 1), 1.4),
    Part.Circle(V(97.9, 29.8, 0), V(0, 0, 1), 1.4),
    Part.Circle(V(96, 14.3, 0), V(0, 0, 1), 1.4),
], False)
sketch9.addConstraint([
    Sketcher.Constraint("Equal", 0, 1),
    Sketcher.Constraint("Equal", 1, 2),
    Sketcher.Constraint("Equal", 2, 3),
    Sketcher.Constraint("Equal", 3, 4),
    Sketcher.Constraint("Equal", 4, 5),
    Sketcher.Constraint("Equal", 5, 6),
    Sketcher.Constraint("Equal", 6, 7),
    Sketcher.Constraint("Equal", 7, 8),
    Sketcher.Constraint("Diameter", 0, 2.9),
    Sketcher.Constraint("DistanceX", -1, 1, 7, 3, 97.899998),
    Sketcher.Constraint("DistanceX", -1, 1, 2, 3, 38.107899),
    Sketcher.Constraint("DistanceX", -1, 1, 4, 3, 64.015399),
    Sketcher.Constraint("DistanceY", 5, 3, 3, 3, 30.1273),
    Sketcher.Constraint("DistanceX", -1, 1, 0, 3, 11.37341),
    Sketcher.Constraint("DistanceY", -1, 1, 0, 3, 32.33213),
    Sketcher.Constraint("DistanceX", -1, 1, 6, 3, 80.757169),
    Sketcher.Constraint("DistanceY", -1, 1, 7, 3, 29.804749),
    Sketcher.Constraint("DistanceY", -1, 1, 8, 3, 14.25981),
    Sketcher.Constraint("DistanceY", 2, 3, 1, 3, 25.898521),
    Sketcher.Constraint("DistanceX", 2, 3, 3, 3, 14.578928),
    Sketcher.Constraint("DistanceY", 4, 3, 3, 3, 20.115251),
    Sketcher.Constraint("DistanceX", 4, 3, 5, 3, 13.874338),
    Sketcher.Constraint("DistanceY", 4, 3, 6, 3, 18.029529),
    Sketcher.Constraint("DistanceY", 5, 3, 7, 3, 24.280831),
    Sketcher.Constraint("DistanceX", 8, 3, 7, 3, 1.917511),
    Sketcher.Constraint("DistanceX", -1, 1, 1, 3, 14.252674),
    Sketcher.Constraint("DistanceY", -1, 1, 1, 3, 49.016813),
])
doc.recompute()
hole4 = body.newObject("PartDesign::Hole", "Hole003")
hole4.Profile = sketch9
hole4.ThreadType = "None"
hole4.Diameter = 2.9
hole4.DepthType = "Dimension"
hole4.Depth = 2
hole4.DrillPoint = "Angled"
hole4.DrillPointAngle = 118

doc.recompute()
